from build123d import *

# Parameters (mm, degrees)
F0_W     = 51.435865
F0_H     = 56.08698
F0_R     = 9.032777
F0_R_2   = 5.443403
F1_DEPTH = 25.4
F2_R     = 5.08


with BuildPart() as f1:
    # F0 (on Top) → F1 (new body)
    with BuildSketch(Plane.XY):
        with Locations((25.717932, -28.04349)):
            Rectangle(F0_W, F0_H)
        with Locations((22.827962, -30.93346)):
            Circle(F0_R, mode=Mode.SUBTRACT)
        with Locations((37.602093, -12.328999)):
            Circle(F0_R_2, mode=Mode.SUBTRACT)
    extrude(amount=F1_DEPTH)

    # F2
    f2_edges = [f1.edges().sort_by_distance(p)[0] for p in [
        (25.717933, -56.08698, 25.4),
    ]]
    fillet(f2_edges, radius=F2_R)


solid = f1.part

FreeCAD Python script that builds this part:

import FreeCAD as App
import Part
import Sketcher
from FreeCAD import Vector
Q = App.Units.Quantity


def edges_at(feature, points):
    """Names of the edges that pass closest to the given points."""
    edges = feature.Shape.Edges
    near = lambda p: min(range(len(edges)), key=lambda i: edges[i].distToShape(Part.Vertex(*p))[0])
    return sorted({f"Edge{near(p) + 1}" for p in points})

doc = App.newDocument("Part")
body = doc.addObject("PartDesign::Body", "Body")

# Sketch on XY plane
sketch1 = body.newObject("Sketcher::SketchObject", "Sketch")
sketch1.AttachmentSupport = (doc.getObject("XY_Plane"), [""])
sketch1.MapMode = "FlatFace"
sketch1.addGeometry(Part.LineSegment(Vector(0, 0, 0), Vector(0, -56, 0)), False)
sketch1.addGeometry(Part.LineSegment(Vector(0, -56, 0), Vector(51, -56, 0)), False)
sketch1.addGeometry(Part.LineSegment(Vector(51, -56, 0), Vector(51, 0, 0)), False)
sketch1.addGeometry(Part.LineSegment(Vector(51, 0, 0), Vector(0, 0, 0)), False)
sketch1.addGeometry(Part.Circle(Vector(23, -31, 0), Vector(0, 0, 1), 9), False)
sketch1.addGeometry(Part.Circle(Vector(38, -12, 0), Vector(0, 0, 1), 5), False)
sketch1.addConstraint(Sketcher.Constraint("Coincident", 0, 2, 1, 1))
sketch1.addConstraint(Sketcher.Constraint("Coincident", 1, 2, 2, 1))
sketch1.addConstraint(Sketcher.Constraint("Coincident", 2, 2, 3, 1))
sketch1.addConstraint(Sketcher.Constraint("Coincident", 3, 2, 0, 1))
sketch1.addConstraint(Sketcher.Constraint("Vertical", 0))
sketch1.addConstraint(Sketcher.Constraint("Horizontal", 1))
sketch1.addConstraint(Sketcher.Constraint("Vertical", 2))
sketch1.addConstraint(Sketcher.Constraint("Horizontal", 3))
sketch1.addConstraint(Sketcher.Constraint("Coincident", 3, 2, -1, 1))
sketch1.addConstraint(Sketcher.Constraint("Diameter", 4, 18.065554))
sketch1.addConstraint(Sketcher.Constraint("Diameter", 5, 10.886806))
sketch1.addConstraint(Sketcher.Constraint("DistanceY", 0, 2, 0, 1, 56.08698))
sketch1.addConstraint(Sketcher.Constraint("DistanceY", 5, 3, -1, 1, 12.328999))
sketch1.addConstraint(Sketcher.Constraint("DistanceX", 1, 1, 1, 2, 51.435865))
sketch1.addConstraint(Sketcher.Constraint("DistanceX", -1, 1, 4, 3, 22.827962))
sketch1.addConstraint(Sketcher.Constraint("DistanceY", 4, 3, -1, 1, 30.93346))
sketch1.addConstraint(Sketcher.Constraint("DistanceX", 4, 3, 5, 3, 14.774131))
pad1 = body.newObject("PartDesign::Pad", "Pad")
pad1.Profile = sketch1
pad1.Length = Q("1 in")
doc.recompute()

fillet = body.newObject("PartDesign::Fillet", "Fillet")
fillet.Base = (pad1, edges_at(pad1, [(25.718, -56.087, 25.4)]))
fillet.Radius = Q("0.2 in")

doc.recompute()
